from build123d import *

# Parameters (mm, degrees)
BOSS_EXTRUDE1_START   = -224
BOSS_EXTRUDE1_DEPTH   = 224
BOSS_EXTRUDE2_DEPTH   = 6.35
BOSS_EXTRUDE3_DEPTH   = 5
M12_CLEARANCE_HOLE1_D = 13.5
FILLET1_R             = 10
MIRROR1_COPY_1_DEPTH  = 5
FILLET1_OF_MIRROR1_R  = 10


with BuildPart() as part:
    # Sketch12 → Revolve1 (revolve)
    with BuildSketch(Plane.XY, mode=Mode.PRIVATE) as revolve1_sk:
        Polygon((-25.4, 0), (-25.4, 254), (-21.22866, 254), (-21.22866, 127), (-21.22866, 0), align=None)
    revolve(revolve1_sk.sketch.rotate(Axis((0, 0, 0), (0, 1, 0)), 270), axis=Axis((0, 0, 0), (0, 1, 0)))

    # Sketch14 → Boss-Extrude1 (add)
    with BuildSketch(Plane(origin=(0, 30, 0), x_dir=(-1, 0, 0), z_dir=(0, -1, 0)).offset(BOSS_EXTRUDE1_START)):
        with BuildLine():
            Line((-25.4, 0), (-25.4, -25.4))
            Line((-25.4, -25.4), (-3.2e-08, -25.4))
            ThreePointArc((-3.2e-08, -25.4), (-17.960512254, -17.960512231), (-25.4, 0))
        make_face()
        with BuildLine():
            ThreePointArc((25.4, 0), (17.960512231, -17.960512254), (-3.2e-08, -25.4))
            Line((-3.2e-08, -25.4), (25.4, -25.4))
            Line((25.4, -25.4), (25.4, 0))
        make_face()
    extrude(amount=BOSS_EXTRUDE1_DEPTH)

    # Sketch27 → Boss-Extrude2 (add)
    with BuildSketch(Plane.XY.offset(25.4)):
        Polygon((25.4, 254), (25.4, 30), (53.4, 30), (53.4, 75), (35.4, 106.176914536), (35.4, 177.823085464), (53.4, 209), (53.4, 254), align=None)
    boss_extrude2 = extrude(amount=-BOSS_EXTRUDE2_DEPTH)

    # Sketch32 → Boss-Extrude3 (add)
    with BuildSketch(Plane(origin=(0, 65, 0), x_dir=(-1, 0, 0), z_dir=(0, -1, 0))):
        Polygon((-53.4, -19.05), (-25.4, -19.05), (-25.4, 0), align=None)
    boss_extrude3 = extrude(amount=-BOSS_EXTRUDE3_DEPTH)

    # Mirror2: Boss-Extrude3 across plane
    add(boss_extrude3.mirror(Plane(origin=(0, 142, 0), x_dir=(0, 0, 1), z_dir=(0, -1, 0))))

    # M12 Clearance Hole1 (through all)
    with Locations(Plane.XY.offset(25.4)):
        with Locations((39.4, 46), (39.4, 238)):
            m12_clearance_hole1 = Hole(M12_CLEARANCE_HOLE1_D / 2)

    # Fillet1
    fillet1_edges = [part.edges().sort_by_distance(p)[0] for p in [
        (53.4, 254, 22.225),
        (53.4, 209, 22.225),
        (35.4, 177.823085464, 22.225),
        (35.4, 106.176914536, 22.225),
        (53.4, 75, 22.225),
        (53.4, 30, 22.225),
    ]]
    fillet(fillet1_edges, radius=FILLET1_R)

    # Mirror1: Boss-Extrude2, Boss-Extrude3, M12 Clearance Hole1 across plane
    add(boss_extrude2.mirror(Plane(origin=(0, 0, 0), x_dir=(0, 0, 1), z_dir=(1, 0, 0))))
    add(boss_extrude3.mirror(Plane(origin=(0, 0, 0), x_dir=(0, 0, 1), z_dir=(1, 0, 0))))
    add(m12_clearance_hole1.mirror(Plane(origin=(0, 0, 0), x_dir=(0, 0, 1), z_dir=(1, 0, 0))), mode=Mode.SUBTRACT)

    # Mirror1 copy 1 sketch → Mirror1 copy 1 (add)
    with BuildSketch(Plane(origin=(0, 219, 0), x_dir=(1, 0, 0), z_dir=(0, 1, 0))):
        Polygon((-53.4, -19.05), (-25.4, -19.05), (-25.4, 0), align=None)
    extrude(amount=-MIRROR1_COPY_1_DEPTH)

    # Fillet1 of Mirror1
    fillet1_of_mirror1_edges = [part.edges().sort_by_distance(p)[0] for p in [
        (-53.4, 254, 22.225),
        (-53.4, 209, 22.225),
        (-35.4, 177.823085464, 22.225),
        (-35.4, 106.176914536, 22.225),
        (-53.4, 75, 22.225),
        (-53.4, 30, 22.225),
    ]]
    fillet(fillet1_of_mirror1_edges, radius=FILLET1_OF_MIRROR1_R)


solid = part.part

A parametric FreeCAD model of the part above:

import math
import FreeCAD as App
import Part
import Sketcher
Q = App.Units.Quantity


def edges_at(feature, points):
    """Names of the edges that pass closest to the given points."""
    edges = feature.Shape.Edges
    near = lambda p: min(range(len(edges)), key=lambda i: edges[i].distToShape(Part.Vertex(*p))[0])
    return sorted({f"Edge{near(p) + 1}" for p in points})

doc = App.newDocument("Part")
body = doc.addObject("PartDesign::Body", "Body")

sketch1 = body.newObject("Sketcher::SketchObject", "Sketch")
sketch1.AttachmentSupport = (doc.getObject("XY_Plane"), [""])
sketch1.MapMode = "FlatFace"
sketch1.addGeometry(Part.LineSegment(App.Vector(-25.4, 254, 0), App.Vector(-25.4, 0, 0)), False)
sketch1.addGeometry(Part.LineSegment(App.Vector(-25.4, 0, 0), App.Vector(-21.2, 0, 0)), False)
sketch1.addGeometry(Part.LineSegment(App.Vector(-21.2, 0, 0), App.Vector(-21.2, 254, 0)), False)
sketch1.addGeometry(Part.LineSegment(App.Vector(-21.2, 254, 0), App.Vector(-25.4, 254, 0)), False)
sketch1.addConstraint(Sketcher.Constraint("Coincident", 0, 2, 1, 1))
sketch1.addConstraint(Sketcher.Constraint("Coincident", 1, 2, 2, 1))
sketch1.addConstraint(Sketcher.Constraint("Coincident", 2, 2, 3, 1))
sketch1.addConstraint(Sketcher.Constraint("Coincident", 3, 2, 0, 1))
sketch1.addConstraint(Sketcher.Constraint("Vertical", 0))
sketch1.addConstraint(Sketcher.Constraint("Horizontal", 1))
sketch1.addConstraint(Sketcher.Constraint("Vertical", 2))
sketch1.addConstraint(Sketcher.Constraint("Horizontal", 3))
sketch1.addConstraint(Sketcher.Constraint("PointOnObject", 0, 2, -1))
sketch1.addConstraint(Sketcher.Constraint("DistanceY", 0, 2, 0, 1, 254.0))
sketch1.addConstraint(Sketcher.Constraint("DistanceX", 0, 2, -1, 1, 25.4))
sketch1.addConstraint(Sketcher.Constraint("DistanceX", 1, 1, 1, 2, 4.17134))
revolution = body.newObject("PartDesign::Revolution", "Revolution")
revolution.Profile = sketch1
revolution.ReferenceAxis = (sketch1, ["V_Axis"])
revolution.Angle = 360

sketch2 = body.newObject("Sketcher::SketchObject", "Sketch001")
sketch2.AttachmentSupport = (doc.getObject("XZ_Plane"), [""])
sketch2.MapMode = "FlatFace"
sketch2.AttachmentOffset = App.Placement(App.Vector(0, 0, -254), App.Rotation())
sketch2.addGeometry(Part.LineSegment(App.Vector(25, 0, 0), App.Vector(25, 25, 0)), False)
sketch2.addGeometry(Part.LineSegment(App.Vector(25, 25, 0), App.Vector(0, 25, 0)), False)
sketch2.addGeometry(Part.ArcOfCircle(Part.Circle(App.Vector(0, 0, 0), App.Vector(0, 0, 1), 25), math.radians(0), math.radians(90)), False)
sketch2.addGeometry(Part.ArcOfCircle(Part.Circle(App.Vector(0, 0, 0), App.Vector(0, 0, 1), 25), math.radians(90), math.radians(180)), False)
sketch2.addGeometry(Part.LineSegment(App.Vector(0, 25, 0), App.Vector(-25, 25, 0)), False)
sketch2.addGeometry(Part.LineSegment(App.Vector(-25, 25, 0), App.Vector(-25, 0, 0)), False)
sketch2.addConstraint(Sketcher.Constraint("Coincident", 0, 2, 1, 1))
sketch2.addConstraint(Sketcher.Constraint("Tangent", 1, 2, 2, 2))
sketch2.addConstraint(Sketcher.Constraint("Tangent", 2, 1, 0, 1))
sketch2.addConstraint(Sketcher.Constraint("Tangent", 3, 1, 4, 1))
sketch2.addConstraint(Sketcher.Constraint("Coincident", 4, 2, 5, 1))
sketch2.addConstraint(Sketcher.Constraint("Tangent", 5, 2, 3, 2))
sketch2.addConstraint(Sketcher.Constraint("Vertical", 0))
sketch2.addConstraint(Sketcher.Constraint("Horizontal", 1))
sketch2.addConstraint(Sketcher.Constraint("Horizontal", 4))
sketch2.addConstraint(Sketcher.Constraint("Vertical", 5))
sketch2.addConstraint(Sketcher.Constraint("Coincident", 2, 3, -1, 1))
sketch2.addConstraint(Sketcher.Constraint("Coincident", 3, 3, -1, 1))
sketch2.addConstraint(Sketcher.Constraint("Equal", 2, 3))
sketch2.addConstraint(Sketcher.Constraint("Radius", 2, 25.4))
pad1 = body.newObject("PartDesign::Pad", "Pad")
pad1.Profile = sketch2
pad1.Length = 224

sketch3 = body.newObject("Sketcher::SketchObject", "Sketch002")
sketch3.AttachmentSupport = (doc.getObject("XY_Plane"), [""])
sketch3.MapMode = "FlatFace"
sketch3.AttachmentOffset = App.Placement(App.Vector(0, 0, 25.4), App.Rotation())
sketch3.addGeometry(Part.LineSegment(App.Vector(25, 254, 0), App.Vector(25, 30, 0)), False)
sketch3.addGeometry(Part.LineSegment(App.Vector(25, 30, 0), App.Vector(53, 30, 0)), False)
sketch3.addGeometry(Part.LineSegment(App.Vector(53, 30, 0), App.Vector(53, 75, 0)), False)
sketch3.addGeometry(Part.LineSegment(App.Vector(53, 75, 0), App.Vector(35, 106, 0)), False)
sketch3.addGeometry(Part.LineSegment(App.Vector(35, 106, 0), App.Vector(35, 178, 0)), False)
sketch3.addGeometry(Part.LineSegment(App.Vector(35, 178, 0), App.Vector(53, 209, 0)), False)
sketch3.addGeometry(Part.LineSegment(App.Vector(53, 209, 0), App.Vector(53, 254, 0)), False)
sketch3.addGeometry(Part.LineSegment(App.Vector(53, 254, 0), App.Vector(25, 254, 0)), False)
sketch3.addConstraint(Sketcher.Constraint("Coincident", 0, 2, 1, 1))
sketch3.addConstraint(Sketcher.Constraint("Coincident", 1, 2, 2, 1))
sketch3.addConstraint(Sketcher.Constraint("Coincident", 2, 2, 3, 1))
sketch3.addConstraint(Sketcher.Constraint("Coincident", 3, 2, 4, 1))
sketch3.addConstraint(Sketcher.Constraint("Coincident", 4, 2, 5, 1))
sketch3.addConstraint(Sketcher.Constraint("Coincident", 5, 2, 6, 1))
sketch3.addConstraint(Sketcher.Constraint("Coincident", 6, 2, 7, 1))
sketch3.addConstraint(Sketcher.Constraint("Coincident", 7, 2, 0, 1))
sketch3.addConstraint(Sketcher.Constraint("Vertical", 0))
sketch3.addConstraint(Sketcher.Constraint("Horizontal", 1))
sketch3.addConstraint(Sketcher.Constraint("Vertical", 2))
sketch3.addConstraint(Sketcher.Constraint("Vertical", 4))
sketch3.addConstraint(Sketcher.Constraint("Vertical", 6))
sketch3.addConstraint(Sketcher.Constraint("Horizontal", 7))
sketch3.addConstraint(Sketcher.Constraint("Vertical", 2, 2, 5, 2))
sketch3.addConstraint(Sketcher.Constraint("Equal", 2, 6))
sketch3.addConstraint(Sketcher.Constraint("Equal", 3, 5))
sketch3.addConstraint(Sketcher.Constraint("DistanceX", 1, 1, 1, 2, 28.0))
sketch3.addConstraint(Sketcher.Constraint("DistanceY", 0, 2, 0, 1, 224.0))
sketch3.addConstraint(Sketcher.Constraint("DistanceY", 2, 1, 2, 2, 45.0))
sketch3.addConstraint(Sketcher.Constraint("Angle", 3, Q("120 deg")))
sketch3.addConstraint(Sketcher.Constraint("Distance", 3, 36.0))
sketch3.addConstraint(Sketcher.Constraint("DistanceY", -1, 1, 0, 2, 30.0))
sketch3.addConstraint(Sketcher.Constraint("DistanceX", -1, 1, 0, 2, 25.4))
pad2 = body.newObject("PartDesign::Pad", "Pad001")
pad2.Profile = sketch3
pad2.Length = 6.35
pad2.Reversed = True

sketch4 = body.newObject("Sketcher::SketchObject", "Sketch003")
sketch4.AttachmentSupport = (doc.getObject("XZ_Plane"), [""])
sketch4.MapMode = "FlatFace"
sketch4.AttachmentOffset = App.Placement(App.Vector(0, 0, -65), App.Rotation())
sketch4.addGeometry(Part.LineSegment(App.Vector(53, 19, 0), App.Vector(25, 19, 0)), False)
sketch4.addGeometry(Part.LineSegment(App.Vector(25, 19, 0), App.Vector(25, 0, 0)), False)
sketch4.addGeometry(Part.LineSegment(App.Vector(25, 0, 0), App.Vector(53, 19, 0)), False)
sketch4.addConstraint(Sketcher.Constraint("Coincident", 0, 2, 1, 1))
sketch4.addConstraint(Sketcher.Constraint("Coincident", 1, 2, 2, 1))
sketch4.addConstraint(Sketcher.Constraint("Coincident", 2, 2, 0, 1))
sketch4.addConstraint(Sketcher.Constraint("Horizontal", 0))
sketch4.addConstraint(Sketcher.Constraint("Vertical", 1))
sketch4.addConstraint(Sketcher.Constraint("PointOnObject", 1, 2, -1))
sketch4.addConstraint(Sketcher.Constraint("DistanceX", 0, 2, 0, 1, 28.0))
sketch4.addConstraint(Sketcher.Constraint("DistanceY", 1, 2, 1, 1, 19.05))
sketch4.addConstraint(Sketcher.Constraint("DistanceX", -1, 1, 0, 2, 25.4))
pad3 = body.newObject("PartDesign::Pad", "Pad002")
pad3.Profile = sketch4
pad3.Length = 5
pad3.Reversed = True
doc.recompute()

datumplane = body.newObject("PartDesign::Plane", "DatumPlane")
datumplane.AttachmentSupport = (doc.getObject("XZ_Plane"), [""])
datumplane.MapMode = "FlatFace"
datumplane.AttachmentOffset = App.Placement(App.Vector(0, 0, -142), App.Rotation())
mirrored = body.newObject("PartDesign::Mirrored", "Mirrored")
mirrored.Originals = [pad3]
mirrored.MirrorPlane = (datumplane, [""])
body.Tip = mirrored

sketch5 = body.newObject("Sketcher::SketchObject", "Sketch004")
sketch5.AttachmentSupport = (doc.getObject("XY_Plane"), [""])
sketch5.MapMode = "FlatFace"
sketch5.AttachmentOffset = App.Placement(App.Vector(0, 0, 25.4), App.Rotation())
sketch5.addGeometry(Part.Circle(App.Vector(39, 46, 0), App.Vector(0, 0, 1), 7), False)
sketch5.addGeometry(Part.Circle(App.Vector(39, 238, 0), App.Vector(0, 0, 1), 7), False)
sketch5.addConstraint(Sketcher.Constraint("Equal", 0, 1))
sketch5.addConstraint(Sketcher.Constraint("Vertical", 0, 3, 1, 3))
sketch5.addConstraint(Sketcher.Constraint("Diameter", 0, 13.5))
sketch5.addConstraint(Sketcher.Constraint("DistanceY", -1, 1, 0, 3, 46.0))
sketch5.addConstraint(Sketcher.Constraint("DistanceY", -1, 1, 1, 3, 238.0))
sketch5.addConstraint(Sketcher.Constraint("DistanceX", -1, 1, 0, 3, 39.4))
doc.recompute()
hole = body.newObject("PartDesign::Hole", "Hole")
hole.Profile = sketch5
hole.ThreadType = "None"
hole.Diameter = 13.5
hole.DepthType = "ThroughAll"
doc.recompute()

fillet = body.newObject("PartDesign::Fillet", "Fillet")
fillet.Base = (hole, edges_at(hole, [
    (53.4, 254, 22.225),
    (53.4, 209, 22.225),
    (35.4, 177.823, 22.225),
    (35.4, 106.177, 22.225),
    (53.4, 75, 22.225),
    (53.4, 30, 22.225),
]))
fillet.Radius = 10
doc.recompute()

mirrored2 = body.newObject("PartDesign::Mirrored", "Mirrored001")
mirrored2.Originals = [pad2, pad3, hole]
mirrored2.MirrorPlane = (doc.getObject("YZ_Plane"), [""])
body.Tip = mirrored2

sketch6 = body.newObject("Sketcher::SketchObject", "Sketch005")
sketch6.AttachmentSupport = (doc.getObject("XZ_Plane"), [""])
sketch6.MapMode = "FlatFace"
sketch6.AttachmentOffset = App.Placement(App.Vector(0, 0, -219), App.Rotation())
sketch6.addGeometry(Part.LineSegment(App.Vector(-53, 19, 0), App.Vector(-25, 19, 0)), False)
sketch6.addGeometry(Part.LineSegment(App.Vector(-25, 19, 0), App.Vector(-25, 0, 0)), False)
sketch6.addGeometry(Part.LineSegment(App.Vector(-25, 0, 0), App.Vector(-53, 19, 0)), False)
sketch6.addConstraint(Sketcher.Constraint("Coincident", 0, 2, 1, 1))
sketch6.addConstraint(Sketcher.Constraint("Coincident", 1, 2, 2, 1))
sketch6.addConstraint(Sketcher.Constraint("Coincident", 2, 2, 0, 1))
sketch6.addConstraint(Sketcher.Constraint("Horizontal", 0))
sketch6.addConstraint(Sketcher.Constraint("Vertical", 1))
sketch6.addConstraint(Sketcher.Constraint("PointOnObject", 1, 2, -1))
sketch6.addConstraint(Sketcher.Constraint("DistanceX", 0, 1, 0, 2, 28.0))
sketch6.addConstraint(Sketcher.Constraint("DistanceY", 1, 2, 1, 1, 19.05))
sketch6.addConstraint(Sketcher.Constraint("DistanceX", 0, 2, -1, 1, 25.4))
pad4 = body.newObject("PartDesign::Pad", "Pad003")
pad4.Profile = sketch6
pad4.Length = 5
doc.recompute()

fillet2 = body.newObject("PartDesign::Fillet", "Fillet001")
fillet2.Base = (pad4, edges_at(pad4, [
    (-53.4, 254, 22.225),
    (-53.4, 209, 22.225),
    (-35.4, 177.823, 22.225),
    (-35.4, 106.177, 22.225),
    (-53.4, 75, 22.225),
    (-53.4, 30, 22.225),
]))
fillet2.Radius = 10

doc.recompute()
